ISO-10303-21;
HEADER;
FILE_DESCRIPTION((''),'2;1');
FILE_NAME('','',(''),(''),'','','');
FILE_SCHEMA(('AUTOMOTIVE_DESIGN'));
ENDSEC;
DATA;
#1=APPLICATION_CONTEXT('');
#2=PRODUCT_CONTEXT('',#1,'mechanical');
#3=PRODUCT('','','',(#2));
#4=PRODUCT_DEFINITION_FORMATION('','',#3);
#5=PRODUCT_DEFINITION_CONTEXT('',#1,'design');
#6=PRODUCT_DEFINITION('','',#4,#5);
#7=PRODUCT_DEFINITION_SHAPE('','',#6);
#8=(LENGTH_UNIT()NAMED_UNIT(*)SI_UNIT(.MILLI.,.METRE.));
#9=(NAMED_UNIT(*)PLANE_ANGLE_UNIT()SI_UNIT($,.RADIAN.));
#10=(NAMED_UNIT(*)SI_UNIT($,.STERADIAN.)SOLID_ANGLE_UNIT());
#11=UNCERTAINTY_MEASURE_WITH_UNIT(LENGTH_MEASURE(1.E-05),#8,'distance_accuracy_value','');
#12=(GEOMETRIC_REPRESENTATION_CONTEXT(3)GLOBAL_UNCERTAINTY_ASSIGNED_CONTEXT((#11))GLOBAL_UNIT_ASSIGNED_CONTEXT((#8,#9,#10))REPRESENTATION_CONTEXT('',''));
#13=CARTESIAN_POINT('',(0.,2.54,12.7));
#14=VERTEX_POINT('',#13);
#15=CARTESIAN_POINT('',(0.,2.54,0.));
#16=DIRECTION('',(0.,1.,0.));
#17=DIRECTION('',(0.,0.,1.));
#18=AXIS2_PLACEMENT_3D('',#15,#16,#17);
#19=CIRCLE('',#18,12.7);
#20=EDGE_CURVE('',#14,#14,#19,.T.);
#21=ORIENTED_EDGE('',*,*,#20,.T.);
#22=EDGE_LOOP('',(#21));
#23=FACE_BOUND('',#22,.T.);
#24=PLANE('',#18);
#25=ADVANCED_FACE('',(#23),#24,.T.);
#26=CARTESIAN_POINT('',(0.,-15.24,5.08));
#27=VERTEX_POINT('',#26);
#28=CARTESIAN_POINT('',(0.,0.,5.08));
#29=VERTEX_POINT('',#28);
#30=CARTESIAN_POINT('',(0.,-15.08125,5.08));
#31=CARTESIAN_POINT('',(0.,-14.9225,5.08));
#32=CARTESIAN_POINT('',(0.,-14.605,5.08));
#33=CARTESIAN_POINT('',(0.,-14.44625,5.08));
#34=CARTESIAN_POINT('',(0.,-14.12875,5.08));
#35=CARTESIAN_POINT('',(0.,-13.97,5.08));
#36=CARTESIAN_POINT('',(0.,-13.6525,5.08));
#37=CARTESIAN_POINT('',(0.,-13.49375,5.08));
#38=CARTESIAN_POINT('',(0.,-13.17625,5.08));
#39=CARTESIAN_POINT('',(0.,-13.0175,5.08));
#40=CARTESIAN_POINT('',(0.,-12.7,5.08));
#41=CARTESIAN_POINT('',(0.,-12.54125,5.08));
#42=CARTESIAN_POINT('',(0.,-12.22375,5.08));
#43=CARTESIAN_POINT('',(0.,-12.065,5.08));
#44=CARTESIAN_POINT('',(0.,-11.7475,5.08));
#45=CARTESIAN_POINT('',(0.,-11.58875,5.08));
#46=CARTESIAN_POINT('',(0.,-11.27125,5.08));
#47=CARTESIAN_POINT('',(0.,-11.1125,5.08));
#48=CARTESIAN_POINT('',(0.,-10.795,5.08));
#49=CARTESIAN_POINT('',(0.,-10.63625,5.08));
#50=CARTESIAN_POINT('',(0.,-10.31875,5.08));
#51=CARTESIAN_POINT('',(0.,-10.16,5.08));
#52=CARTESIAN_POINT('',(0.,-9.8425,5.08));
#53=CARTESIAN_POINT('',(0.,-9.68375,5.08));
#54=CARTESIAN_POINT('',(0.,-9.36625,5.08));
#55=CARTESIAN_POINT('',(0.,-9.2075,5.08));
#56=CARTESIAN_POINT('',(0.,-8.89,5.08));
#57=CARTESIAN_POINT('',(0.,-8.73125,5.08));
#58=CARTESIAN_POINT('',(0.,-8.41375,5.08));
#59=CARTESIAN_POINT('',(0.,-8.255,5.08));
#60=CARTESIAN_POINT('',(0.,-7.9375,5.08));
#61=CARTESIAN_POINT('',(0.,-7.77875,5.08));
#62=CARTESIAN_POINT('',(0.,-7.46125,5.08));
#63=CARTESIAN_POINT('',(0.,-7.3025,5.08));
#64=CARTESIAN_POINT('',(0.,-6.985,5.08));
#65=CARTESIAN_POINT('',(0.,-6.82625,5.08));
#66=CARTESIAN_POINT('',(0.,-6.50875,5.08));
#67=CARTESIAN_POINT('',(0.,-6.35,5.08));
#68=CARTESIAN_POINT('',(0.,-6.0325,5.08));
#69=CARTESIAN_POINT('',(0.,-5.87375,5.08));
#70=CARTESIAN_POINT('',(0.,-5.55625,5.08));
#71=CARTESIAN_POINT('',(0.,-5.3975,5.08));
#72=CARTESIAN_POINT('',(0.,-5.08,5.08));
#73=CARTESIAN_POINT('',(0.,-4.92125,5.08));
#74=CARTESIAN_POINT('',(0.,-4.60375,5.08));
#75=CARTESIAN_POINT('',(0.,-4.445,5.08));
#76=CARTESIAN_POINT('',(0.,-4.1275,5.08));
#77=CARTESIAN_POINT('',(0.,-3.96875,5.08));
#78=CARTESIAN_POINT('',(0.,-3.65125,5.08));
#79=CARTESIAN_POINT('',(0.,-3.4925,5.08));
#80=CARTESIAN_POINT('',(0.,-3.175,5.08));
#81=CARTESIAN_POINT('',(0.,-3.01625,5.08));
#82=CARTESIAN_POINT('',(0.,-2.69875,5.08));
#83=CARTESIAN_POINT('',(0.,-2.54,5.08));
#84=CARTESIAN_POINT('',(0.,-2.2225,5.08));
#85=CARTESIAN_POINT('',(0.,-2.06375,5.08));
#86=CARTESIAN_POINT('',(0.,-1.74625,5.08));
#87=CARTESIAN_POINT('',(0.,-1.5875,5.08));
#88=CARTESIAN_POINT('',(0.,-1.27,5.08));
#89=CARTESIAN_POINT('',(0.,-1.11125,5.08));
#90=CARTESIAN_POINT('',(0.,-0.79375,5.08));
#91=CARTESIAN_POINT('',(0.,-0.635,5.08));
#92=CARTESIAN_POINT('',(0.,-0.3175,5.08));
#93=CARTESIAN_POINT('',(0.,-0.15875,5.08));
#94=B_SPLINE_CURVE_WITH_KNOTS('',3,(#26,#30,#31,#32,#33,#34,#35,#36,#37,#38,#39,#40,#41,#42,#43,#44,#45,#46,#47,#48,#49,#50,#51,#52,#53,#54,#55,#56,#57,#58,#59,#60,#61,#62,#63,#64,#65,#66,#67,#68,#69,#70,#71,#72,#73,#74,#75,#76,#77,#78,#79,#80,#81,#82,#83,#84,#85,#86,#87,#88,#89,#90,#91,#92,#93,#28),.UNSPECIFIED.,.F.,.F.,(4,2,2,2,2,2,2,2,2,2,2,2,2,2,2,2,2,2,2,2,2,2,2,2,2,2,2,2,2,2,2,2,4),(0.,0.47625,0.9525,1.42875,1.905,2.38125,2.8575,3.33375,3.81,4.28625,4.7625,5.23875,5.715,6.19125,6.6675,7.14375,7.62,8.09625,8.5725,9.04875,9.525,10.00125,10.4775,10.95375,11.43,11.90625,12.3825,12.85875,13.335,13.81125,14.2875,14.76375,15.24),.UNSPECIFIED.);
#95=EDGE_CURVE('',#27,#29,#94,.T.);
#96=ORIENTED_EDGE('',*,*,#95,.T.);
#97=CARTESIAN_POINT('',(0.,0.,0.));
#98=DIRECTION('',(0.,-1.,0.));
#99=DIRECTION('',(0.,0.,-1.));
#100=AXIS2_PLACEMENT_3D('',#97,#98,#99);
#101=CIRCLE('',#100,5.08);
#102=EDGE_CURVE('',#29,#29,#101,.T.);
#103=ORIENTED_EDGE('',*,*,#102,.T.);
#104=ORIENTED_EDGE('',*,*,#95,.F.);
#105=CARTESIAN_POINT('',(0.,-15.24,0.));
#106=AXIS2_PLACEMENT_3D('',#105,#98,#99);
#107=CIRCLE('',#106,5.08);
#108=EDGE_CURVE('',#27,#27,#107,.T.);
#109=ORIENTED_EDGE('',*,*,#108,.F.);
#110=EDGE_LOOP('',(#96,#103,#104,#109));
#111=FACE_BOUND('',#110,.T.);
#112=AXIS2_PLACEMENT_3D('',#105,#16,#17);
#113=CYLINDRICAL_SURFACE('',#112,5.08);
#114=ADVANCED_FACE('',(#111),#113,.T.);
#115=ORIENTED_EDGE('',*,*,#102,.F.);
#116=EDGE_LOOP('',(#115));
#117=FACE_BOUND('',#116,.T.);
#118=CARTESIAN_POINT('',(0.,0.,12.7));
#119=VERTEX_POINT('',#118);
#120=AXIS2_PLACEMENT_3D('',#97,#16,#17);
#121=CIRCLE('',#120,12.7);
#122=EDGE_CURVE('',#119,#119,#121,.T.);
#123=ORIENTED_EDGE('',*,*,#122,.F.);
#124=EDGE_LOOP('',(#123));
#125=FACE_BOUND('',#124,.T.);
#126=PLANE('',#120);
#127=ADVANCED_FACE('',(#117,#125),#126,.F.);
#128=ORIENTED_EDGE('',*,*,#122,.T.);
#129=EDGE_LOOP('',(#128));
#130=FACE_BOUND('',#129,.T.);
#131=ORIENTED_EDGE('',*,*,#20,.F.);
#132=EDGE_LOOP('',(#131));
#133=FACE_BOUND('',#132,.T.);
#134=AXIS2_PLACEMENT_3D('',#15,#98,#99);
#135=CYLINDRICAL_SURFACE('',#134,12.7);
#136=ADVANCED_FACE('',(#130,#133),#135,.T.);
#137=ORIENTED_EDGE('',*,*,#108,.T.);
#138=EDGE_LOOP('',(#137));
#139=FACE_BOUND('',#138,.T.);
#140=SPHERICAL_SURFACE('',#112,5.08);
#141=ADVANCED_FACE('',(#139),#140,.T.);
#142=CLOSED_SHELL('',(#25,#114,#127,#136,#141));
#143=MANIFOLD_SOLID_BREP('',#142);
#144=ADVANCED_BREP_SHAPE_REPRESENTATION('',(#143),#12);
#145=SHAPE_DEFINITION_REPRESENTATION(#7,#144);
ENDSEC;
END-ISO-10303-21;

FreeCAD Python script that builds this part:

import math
import FreeCAD as App
import Part
import Sketcher
Q = App.Units.Quantity

doc = App.newDocument("Part")
body = doc.addObject("PartDesign::Body", "Body")

sketch1 = doc.addObject("Sketcher::SketchObject", "Sketch")
body.addObject(sketch1)
sketch1.AttachmentSupport = (doc.XZ_Plane, [""])
sketch1.MapMode = "FlatFace"
sketch1.addGeometry(Part.Circle(App.Vector(0, 0, 0), App.Vector(0, 0, 1), 12.7), False)
sketch1.addConstraint([
    Sketcher.Constraint("Coincident", 0, 3, -1, 1),
    Sketcher.Constraint("Diameter", 0, Q("1 in")),
])
pad1 = doc.addObject("PartDesign::Pad", "Pad")
body.addObject(pad1)
pad1.Profile = sketch1
pad1.Length = Q("0.1 in")
pad1.Reversed = True

sketch2 = doc.addObject("Sketcher::SketchObject", "Sketch001")
body.addObject(sketch2)
sketch2.AttachmentSupport = (doc.XZ_Plane, [""])
sketch2.MapMode = "FlatFace"
sketch2.addGeometry(Part.Circle(App.Vector(0, 0, 0), App.Vector(0, 0, 1), 5.08), False)
sketch2.addConstraint([
    Sketcher.Constraint("Coincident", 0, 3, -1, 1),
    Sketcher.Constraint("Diameter", 0, Q("0.4 in")),
])
pad2 = doc.addObject("PartDesign::Pad", "Pad001")
body.addObject(pad2)
pad2.Profile = sketch2
pad2.Length = Q("0.6 in")

sketch3 = doc.addObject("Sketcher::SketchObject", "Sketch002")
body.addObject(sketch3)
sketch3.AttachmentSupport = (doc.YZ_Plane, [""])
sketch3.MapMode = "FlatFace"
sketch3.addGeometry([
    Part.LineSegment(App.Vector(-20.32, 0, 0), App.Vector(-15.24, 0, 0)),
    Part.LineSegment(App.Vector(-15.24, 0, 0), App.Vector(-15.24, 5.08, 0)),
    Part.ArcOfCircle(Part.Circle(App.Vector(-15.24, 0, 0), App.Vector(0, 0, 1), 5.08), math.radians(90), math.radians(180)),
], False)
sketch3.addConstraint([
    Sketcher.Constraint("Coincident", 0, 2, 1, 1),
    Sketcher.Constraint("Coincident", 1, 2, 2, 1),
    Sketcher.Constraint("Coincident", 2, 2, 0, 1),
    Sketcher.Constraint("Horizontal", 0),
    Sketcher.Constraint("Vertical", 1),
    Sketcher.Constraint("Coincident", 0, 2, 2, 3),
    Sketcher.Constraint("PointOnObject", 2, 3, -1),
    Sketcher.Constraint("Radius", 2, Q("0.2 in")),
    Sketcher.Constraint("DistanceX", 2, 3, -1, 1, Q("0.6 in")),
])
revolution = doc.addObject("PartDesign::Revolution", "Revolution")
body.addObject(revolution)
revolution.Profile = sketch3
revolution.ReferenceAxis = (sketch3, ["H_Axis"])
revolution.Angle = 360

doc.recompute()
